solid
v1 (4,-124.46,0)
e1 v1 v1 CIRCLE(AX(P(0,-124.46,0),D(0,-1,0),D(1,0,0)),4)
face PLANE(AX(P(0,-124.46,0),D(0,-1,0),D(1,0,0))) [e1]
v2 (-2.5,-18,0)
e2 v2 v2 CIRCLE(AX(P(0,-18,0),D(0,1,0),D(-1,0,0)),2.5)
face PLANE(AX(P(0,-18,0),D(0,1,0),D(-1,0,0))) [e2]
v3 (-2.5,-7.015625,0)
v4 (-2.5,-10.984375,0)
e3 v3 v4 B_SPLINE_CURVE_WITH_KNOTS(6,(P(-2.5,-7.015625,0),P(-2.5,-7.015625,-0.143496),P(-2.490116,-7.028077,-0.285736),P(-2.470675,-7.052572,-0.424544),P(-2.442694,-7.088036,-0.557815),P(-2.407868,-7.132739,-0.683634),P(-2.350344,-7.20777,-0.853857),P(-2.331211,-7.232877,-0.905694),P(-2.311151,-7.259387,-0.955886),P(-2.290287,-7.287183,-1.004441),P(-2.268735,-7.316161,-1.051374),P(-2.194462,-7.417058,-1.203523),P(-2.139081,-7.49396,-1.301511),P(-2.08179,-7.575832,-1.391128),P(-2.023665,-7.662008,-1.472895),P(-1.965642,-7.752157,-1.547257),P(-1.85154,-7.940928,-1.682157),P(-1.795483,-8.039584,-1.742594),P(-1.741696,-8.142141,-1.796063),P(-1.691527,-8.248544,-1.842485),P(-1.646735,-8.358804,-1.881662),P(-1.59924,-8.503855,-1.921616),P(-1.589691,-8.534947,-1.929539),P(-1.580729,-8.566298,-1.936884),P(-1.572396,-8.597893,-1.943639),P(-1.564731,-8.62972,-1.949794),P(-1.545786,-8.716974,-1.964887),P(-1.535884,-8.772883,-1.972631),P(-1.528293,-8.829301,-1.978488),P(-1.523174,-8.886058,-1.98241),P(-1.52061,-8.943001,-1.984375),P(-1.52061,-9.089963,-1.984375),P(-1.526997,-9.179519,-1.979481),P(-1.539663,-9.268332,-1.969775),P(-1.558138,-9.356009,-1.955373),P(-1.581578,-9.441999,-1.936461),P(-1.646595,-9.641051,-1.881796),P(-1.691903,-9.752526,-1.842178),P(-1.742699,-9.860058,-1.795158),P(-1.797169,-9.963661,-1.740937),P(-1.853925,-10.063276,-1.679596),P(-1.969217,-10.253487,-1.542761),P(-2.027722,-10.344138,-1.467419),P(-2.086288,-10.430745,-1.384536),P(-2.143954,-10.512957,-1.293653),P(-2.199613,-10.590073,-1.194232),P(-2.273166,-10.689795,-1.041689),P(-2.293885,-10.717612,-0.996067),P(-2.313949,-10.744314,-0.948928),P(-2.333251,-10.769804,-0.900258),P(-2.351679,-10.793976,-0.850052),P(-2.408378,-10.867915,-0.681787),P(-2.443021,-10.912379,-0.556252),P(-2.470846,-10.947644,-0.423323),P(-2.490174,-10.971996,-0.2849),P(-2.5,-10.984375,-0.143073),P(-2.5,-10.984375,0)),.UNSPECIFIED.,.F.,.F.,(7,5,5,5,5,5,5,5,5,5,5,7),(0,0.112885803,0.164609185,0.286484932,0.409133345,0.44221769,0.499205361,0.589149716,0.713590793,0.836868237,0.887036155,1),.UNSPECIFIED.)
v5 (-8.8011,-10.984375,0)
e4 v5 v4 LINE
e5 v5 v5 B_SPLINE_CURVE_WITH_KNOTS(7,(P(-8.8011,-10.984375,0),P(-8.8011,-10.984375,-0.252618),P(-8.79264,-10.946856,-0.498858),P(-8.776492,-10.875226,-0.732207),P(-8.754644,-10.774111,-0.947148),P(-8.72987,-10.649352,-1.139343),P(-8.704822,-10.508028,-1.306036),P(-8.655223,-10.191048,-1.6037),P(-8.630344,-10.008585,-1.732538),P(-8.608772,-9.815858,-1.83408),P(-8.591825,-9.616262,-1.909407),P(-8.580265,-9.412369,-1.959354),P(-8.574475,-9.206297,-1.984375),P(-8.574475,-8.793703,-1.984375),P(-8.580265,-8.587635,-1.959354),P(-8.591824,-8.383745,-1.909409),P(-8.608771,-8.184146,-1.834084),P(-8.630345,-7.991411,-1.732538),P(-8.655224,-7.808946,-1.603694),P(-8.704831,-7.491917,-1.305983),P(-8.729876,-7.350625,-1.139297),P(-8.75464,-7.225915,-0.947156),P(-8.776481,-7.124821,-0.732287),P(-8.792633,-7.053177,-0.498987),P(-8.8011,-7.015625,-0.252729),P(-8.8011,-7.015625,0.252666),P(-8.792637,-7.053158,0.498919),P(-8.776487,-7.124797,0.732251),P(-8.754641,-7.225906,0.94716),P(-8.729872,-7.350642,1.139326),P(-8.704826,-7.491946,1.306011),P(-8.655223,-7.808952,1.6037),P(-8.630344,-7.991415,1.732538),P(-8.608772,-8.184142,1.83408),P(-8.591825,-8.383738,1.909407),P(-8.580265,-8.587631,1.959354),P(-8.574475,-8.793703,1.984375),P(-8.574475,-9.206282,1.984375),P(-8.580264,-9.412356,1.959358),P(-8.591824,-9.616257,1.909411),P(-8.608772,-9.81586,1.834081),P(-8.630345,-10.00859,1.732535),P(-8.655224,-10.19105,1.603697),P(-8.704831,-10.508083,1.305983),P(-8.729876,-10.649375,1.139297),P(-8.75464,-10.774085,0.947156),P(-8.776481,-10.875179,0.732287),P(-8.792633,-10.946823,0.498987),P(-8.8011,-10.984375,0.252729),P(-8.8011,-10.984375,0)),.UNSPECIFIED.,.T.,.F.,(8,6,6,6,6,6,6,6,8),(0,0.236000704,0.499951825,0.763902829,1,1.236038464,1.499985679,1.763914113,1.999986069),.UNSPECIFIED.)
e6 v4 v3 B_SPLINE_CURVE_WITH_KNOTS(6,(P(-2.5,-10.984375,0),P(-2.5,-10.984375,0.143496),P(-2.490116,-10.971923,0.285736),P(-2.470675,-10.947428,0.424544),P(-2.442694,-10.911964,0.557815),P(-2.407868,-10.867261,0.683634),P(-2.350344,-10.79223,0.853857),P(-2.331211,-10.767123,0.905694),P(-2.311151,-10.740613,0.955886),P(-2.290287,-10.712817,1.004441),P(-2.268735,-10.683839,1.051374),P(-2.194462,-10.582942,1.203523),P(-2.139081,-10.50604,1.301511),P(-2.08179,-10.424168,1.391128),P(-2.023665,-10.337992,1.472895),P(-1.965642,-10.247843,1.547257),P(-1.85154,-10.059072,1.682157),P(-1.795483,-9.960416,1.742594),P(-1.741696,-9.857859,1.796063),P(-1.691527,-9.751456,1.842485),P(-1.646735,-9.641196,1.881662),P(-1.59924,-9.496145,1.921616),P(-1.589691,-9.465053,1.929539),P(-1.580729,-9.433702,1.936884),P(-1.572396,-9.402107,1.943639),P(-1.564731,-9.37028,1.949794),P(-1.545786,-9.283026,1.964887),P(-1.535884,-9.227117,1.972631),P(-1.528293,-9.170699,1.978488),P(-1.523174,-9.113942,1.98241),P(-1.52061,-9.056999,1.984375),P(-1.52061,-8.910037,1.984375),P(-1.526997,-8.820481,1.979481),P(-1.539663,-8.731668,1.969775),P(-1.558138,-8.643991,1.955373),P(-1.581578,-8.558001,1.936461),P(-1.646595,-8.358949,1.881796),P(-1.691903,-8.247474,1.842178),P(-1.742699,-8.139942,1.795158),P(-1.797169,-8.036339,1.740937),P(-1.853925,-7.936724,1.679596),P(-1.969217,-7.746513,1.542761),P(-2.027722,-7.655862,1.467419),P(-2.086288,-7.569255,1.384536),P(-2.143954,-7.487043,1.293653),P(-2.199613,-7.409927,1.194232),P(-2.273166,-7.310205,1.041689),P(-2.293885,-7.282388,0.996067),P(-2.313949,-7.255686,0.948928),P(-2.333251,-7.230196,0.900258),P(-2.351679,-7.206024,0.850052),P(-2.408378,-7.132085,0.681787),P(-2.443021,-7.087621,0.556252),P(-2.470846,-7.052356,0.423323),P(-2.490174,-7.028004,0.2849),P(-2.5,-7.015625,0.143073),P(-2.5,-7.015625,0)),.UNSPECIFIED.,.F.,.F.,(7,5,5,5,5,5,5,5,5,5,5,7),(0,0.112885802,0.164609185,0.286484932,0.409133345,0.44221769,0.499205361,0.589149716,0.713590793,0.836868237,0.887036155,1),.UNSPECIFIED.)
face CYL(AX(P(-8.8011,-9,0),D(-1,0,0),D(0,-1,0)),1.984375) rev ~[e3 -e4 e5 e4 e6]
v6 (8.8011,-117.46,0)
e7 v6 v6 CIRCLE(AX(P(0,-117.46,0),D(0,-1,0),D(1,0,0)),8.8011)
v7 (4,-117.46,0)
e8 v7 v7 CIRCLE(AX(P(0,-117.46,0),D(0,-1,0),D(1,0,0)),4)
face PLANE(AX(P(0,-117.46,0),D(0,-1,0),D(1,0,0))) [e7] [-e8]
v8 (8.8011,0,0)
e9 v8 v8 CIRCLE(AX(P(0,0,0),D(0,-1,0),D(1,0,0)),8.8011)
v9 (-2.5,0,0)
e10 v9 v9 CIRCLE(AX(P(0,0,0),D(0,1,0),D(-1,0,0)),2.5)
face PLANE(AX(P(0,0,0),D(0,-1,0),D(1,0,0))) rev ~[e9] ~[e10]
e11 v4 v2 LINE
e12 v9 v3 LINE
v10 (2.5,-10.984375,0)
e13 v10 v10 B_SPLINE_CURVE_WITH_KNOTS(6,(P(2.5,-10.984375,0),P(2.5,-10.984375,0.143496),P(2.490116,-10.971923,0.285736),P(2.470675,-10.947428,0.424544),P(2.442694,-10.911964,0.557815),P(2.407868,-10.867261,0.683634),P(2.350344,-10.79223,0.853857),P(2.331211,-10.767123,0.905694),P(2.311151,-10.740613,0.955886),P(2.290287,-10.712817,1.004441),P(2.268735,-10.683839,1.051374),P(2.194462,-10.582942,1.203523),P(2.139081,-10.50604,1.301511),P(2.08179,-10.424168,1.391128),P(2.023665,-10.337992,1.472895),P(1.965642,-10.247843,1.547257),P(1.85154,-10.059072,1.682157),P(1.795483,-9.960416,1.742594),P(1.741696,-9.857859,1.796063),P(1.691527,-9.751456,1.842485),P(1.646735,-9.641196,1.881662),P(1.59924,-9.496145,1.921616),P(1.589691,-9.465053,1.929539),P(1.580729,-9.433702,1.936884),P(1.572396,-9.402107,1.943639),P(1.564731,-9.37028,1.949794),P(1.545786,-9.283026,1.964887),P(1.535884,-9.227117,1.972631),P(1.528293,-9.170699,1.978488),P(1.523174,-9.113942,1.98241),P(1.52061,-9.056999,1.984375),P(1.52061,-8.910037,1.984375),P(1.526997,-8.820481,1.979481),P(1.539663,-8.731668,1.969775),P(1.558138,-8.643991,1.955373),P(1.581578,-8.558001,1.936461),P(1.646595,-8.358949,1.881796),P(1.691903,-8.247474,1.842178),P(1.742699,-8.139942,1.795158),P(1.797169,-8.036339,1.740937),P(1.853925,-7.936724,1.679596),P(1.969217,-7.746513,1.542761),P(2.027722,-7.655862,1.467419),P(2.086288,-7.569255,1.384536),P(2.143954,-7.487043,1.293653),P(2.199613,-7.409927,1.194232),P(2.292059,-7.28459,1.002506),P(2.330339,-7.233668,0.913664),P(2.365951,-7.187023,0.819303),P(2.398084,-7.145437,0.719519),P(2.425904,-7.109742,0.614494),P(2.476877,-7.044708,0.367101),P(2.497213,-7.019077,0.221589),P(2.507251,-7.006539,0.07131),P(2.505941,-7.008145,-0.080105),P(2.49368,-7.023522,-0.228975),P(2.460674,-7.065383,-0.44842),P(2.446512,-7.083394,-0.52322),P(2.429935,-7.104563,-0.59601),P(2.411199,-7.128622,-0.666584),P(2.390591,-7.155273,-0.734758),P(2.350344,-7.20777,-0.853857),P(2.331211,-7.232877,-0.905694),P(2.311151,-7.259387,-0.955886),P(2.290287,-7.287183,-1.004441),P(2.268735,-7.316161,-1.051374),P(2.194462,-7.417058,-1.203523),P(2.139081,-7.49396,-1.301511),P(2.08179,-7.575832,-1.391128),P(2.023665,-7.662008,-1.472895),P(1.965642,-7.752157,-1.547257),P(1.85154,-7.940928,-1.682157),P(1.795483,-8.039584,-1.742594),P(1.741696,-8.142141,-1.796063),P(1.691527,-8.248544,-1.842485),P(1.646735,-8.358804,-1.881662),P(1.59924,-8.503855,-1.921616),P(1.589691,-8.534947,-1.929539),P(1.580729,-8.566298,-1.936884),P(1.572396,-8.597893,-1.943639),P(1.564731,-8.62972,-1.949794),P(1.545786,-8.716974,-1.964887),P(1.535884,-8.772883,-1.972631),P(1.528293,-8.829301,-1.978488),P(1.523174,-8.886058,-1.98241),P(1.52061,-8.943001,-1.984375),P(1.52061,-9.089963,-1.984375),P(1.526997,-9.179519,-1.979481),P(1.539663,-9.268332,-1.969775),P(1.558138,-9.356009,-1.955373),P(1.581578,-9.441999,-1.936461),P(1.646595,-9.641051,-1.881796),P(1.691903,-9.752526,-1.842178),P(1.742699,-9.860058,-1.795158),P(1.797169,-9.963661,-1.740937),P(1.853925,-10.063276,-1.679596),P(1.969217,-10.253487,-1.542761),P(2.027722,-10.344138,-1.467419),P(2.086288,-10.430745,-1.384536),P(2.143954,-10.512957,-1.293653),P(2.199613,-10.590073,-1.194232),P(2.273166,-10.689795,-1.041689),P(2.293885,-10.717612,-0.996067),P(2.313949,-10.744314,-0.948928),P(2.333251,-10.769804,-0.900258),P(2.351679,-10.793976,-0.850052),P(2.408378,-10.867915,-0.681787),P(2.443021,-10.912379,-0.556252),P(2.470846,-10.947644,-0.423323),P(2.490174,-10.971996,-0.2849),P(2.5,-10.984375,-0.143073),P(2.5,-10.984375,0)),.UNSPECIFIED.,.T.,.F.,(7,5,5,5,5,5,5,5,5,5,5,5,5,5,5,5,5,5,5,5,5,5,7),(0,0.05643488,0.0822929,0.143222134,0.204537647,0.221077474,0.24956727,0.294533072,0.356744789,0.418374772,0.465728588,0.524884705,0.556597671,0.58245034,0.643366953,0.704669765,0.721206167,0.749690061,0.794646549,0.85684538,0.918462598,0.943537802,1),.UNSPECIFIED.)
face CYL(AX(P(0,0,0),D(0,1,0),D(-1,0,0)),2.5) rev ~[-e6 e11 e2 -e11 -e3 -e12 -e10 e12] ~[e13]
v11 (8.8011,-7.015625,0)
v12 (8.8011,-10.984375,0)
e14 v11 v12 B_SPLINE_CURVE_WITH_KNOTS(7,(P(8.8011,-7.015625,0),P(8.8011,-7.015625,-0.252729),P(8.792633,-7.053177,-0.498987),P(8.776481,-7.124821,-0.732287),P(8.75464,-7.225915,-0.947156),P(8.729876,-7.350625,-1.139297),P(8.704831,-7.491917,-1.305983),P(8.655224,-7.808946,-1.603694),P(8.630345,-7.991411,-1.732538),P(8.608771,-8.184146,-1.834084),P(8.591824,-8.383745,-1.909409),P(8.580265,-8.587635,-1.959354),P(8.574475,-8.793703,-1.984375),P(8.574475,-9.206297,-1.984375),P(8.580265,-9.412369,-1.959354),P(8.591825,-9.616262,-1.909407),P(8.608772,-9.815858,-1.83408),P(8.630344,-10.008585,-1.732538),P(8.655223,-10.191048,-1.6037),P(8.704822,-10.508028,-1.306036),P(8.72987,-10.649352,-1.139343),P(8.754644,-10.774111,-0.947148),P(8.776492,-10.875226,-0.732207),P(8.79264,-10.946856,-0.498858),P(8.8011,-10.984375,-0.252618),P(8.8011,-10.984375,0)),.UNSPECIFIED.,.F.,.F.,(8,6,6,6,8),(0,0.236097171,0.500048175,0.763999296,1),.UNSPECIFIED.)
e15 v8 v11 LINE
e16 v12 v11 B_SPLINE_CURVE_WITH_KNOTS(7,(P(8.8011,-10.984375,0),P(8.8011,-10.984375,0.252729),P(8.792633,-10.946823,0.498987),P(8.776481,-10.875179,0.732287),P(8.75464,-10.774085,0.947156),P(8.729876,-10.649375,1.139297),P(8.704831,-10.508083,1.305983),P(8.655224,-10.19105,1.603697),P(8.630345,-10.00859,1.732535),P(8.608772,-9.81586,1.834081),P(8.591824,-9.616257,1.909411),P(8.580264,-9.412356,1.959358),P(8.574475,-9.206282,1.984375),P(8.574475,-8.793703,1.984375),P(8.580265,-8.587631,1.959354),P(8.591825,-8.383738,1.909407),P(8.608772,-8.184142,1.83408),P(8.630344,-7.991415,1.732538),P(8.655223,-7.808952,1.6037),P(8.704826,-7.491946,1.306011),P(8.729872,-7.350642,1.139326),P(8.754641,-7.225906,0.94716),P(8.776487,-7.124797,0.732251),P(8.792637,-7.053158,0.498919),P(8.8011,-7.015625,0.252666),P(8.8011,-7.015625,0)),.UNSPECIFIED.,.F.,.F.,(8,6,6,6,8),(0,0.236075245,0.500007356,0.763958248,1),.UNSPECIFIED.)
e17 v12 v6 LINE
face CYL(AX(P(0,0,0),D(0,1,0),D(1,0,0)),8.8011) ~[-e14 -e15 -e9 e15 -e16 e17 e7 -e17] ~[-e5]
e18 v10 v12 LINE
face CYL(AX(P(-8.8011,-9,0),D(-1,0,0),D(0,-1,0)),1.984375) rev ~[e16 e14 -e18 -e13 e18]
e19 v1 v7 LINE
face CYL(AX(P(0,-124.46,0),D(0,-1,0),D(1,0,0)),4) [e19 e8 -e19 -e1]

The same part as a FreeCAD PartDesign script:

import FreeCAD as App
import Part
import Sketcher

V = App.Vector
Q = App.Units.Quantity

doc = App.newDocument("Part")
body = doc.addObject("PartDesign::Body", "Body")

sketch1 = body.newObject("Sketcher::SketchObject", "Sketch")
sketch1.AttachmentSupport = (doc.getObject("XZ_Plane"), [""])
sketch1.MapMode = "FlatFace"
sketch1.addGeometry(Part.Circle(V(0, 0, 0), V(0, 0, 1), 9), False)
sketch1.addConstraint([
    Sketcher.Constraint("Coincident", 0, 3, -1, 1),
    Sketcher.Constraint("Diameter", 0, Q("17.6022 mm")),
])
pad1 = body.newObject("PartDesign::Pad", "Pad")
pad1.Profile = sketch1
pad1.Length = 124.46

sketch2 = body.newObject("Sketcher::SketchObject", "Sketch001")
sketch2.AttachmentSupport = (doc.getObject("XZ_Plane"), [""])
sketch2.MapMode = "FlatFace"
sketch2.AttachmentOffset = App.Placement(V(0, 0, 124.46), App.Rotation())
sketch2.addGeometry([
    Part.Circle(V(0, 0, 0), V(0, 0, 1), 8.8),
    Part.Circle(V(0, 0, 0), V(0, 0, 1), 4),
], False)
sketch2.addConstraint([
    Sketcher.Constraint("Coincident", 0, 3, -1, 1),
    Sketcher.Constraint("Coincident", 1, 3, -1, 1),
    Sketcher.Constraint("Diameter", 1, Q("8 mm")),
    Sketcher.Constraint("Diameter", 0, Q("17.6022 mm")),
])
pocket1 = body.newObject("PartDesign::Pocket", "Pocket")
pocket1.Profile = sketch2
pocket1.Length = 7

sketch3 = body.newObject("Sketcher::SketchObject", "Sketch002")
sketch3.AttachmentSupport = (doc.getObject("XZ_Plane"), [""])
sketch3.MapMode = "FlatFace"
sketch3.addGeometry(Part.Circle(V(0, 0, 0), V(0, 0, 1), 2.5), False)
sketch3.addConstraint([
    Sketcher.Constraint("Coincident", 0, 3, -1, 1),
    Sketcher.Constraint("Diameter", 0, Q("5 mm")),
])
pocket2 = body.newObject("PartDesign::Pocket", "Pocket001")
pocket2.Profile = sketch3
pocket2.Length = 18
pocket2.Reversed = True

sketch4 = body.newObject("Sketcher::SketchObject", "Sketch003")
sketch4.AttachmentSupport = (doc.getObject("YZ_Plane"), [""])
sketch4.MapMode = "FlatFace"
sketch4.AttachmentOffset = App.Placement(V(0, 0, -8.8011), App.Rotation())
sketch4.addGeometry(Part.Circle(V(-9, 0, 0), V(0, 0, 1), 2), False)
sketch4.addConstraint([
    Sketcher.Constraint("PointOnObject", 0, 3, -1),
    Sketcher.Constraint("DistanceX", 0, 3, -1, 1, Q("9 mm")),
    Sketcher.Constraint("Diameter", 0, Q("3.96875 mm")),
])
pocket3 = body.newObject("PartDesign::Pocket", "Pocket002")
pocket3.Profile = sketch4
pocket3.Type = "ThroughAll"
pocket3.Reversed = True

doc.recompute()
